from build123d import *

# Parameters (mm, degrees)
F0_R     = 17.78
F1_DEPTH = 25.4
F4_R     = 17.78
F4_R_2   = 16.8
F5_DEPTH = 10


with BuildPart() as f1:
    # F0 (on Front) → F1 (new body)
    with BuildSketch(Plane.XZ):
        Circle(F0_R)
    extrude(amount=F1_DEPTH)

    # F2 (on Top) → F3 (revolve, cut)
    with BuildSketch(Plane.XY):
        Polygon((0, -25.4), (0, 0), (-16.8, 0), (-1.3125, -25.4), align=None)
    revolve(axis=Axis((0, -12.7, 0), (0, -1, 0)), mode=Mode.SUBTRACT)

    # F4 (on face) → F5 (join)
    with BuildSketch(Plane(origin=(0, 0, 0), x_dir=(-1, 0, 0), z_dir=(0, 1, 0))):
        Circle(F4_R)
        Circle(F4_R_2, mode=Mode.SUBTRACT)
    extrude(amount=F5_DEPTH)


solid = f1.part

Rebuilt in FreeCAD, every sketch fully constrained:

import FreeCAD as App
import Part
import Sketcher

V = App.Vector
Q = App.Units.Quantity


def add_polygon(sketch, points):
    """Adds a closed chain of lines whose ends are joined by coincident constraints."""
    first, n = sketch.GeometryCount, len(points)
    for a, b in zip(points, points[1:] + points[:1]):
        sketch.addGeometry(Part.LineSegment(App.Vector(*a, 0), App.Vector(*b, 0)), False)
    for i in range(n):
        sketch.addConstraint(Sketcher.Constraint("Coincident", first + i, 2, first + (i + 1) % n, 1))

doc = App.newDocument("Part")
body = doc.addObject("PartDesign::Body", "Body")

# Sketch on XZ plane
sketch1 = body.newObject("Sketcher::SketchObject", "Sketch")
sketch1.AttachmentSupport = (doc.getObject("XZ_Plane"), [""])
sketch1.MapMode = "FlatFace"
sketch1.addGeometry(Part.Circle(V(0, 0, 0), V(0, 0, 1), 18), False)
sketch1.addConstraint(Sketcher.Constraint("Coincident", 0, 3, -1, 1))
sketch1.addConstraint(Sketcher.Constraint("Diameter", 0, Q("35.56 mm")))
pad1 = body.newObject("PartDesign::Pad", "Pad")
pad1.Profile = sketch1
pad1.Length = 25.4

# Sketch on XY plane
sketch2 = body.newObject("Sketcher::SketchObject", "Sketch001")
sketch2.AttachmentSupport = (doc.getObject("XY_Plane"), [""])
sketch2.MapMode = "FlatFace"
add_polygon(sketch2, [(0, -25.4), (0, 0), (-16.8, 0), (-1.3, -25.4)])  # lines 0-3
sketch2.addConstraint(Sketcher.Constraint("Vertical", 0))
sketch2.addConstraint(Sketcher.Constraint("Horizontal", 1))
sketch2.addConstraint(Sketcher.Constraint("Horizontal", 3))
sketch2.addConstraint(Sketcher.Constraint("Coincident", 0, 2, -1, 1))
sketch2.addConstraint(Sketcher.Constraint("DistanceX", 1, 2, 1, 1, Q("16.8 mm")))
sketch2.addConstraint(Sketcher.Constraint("DistanceY", 0, 1, 0, 2, Q("25.4 mm")))
sketch2.addConstraint(Sketcher.Constraint("DistanceX", 3, 1, 3, 2, Q("1.3125 mm")))
groove = body.newObject("PartDesign::Groove", "Groove")
groove.Profile = sketch2
groove.ReferenceAxis = (sketch2, ["V_Axis"])
groove.Angle = 360

# Sketch on XZ plane
sketch3 = body.newObject("Sketcher::SketchObject", "Sketch002")
sketch3.AttachmentSupport = (doc.getObject("XZ_Plane"), [""])
sketch3.MapMode = "FlatFace"
sketch3.addGeometry(Part.Circle(V(0, 0, 0), V(0, 0, 1), 18), False)
sketch3.addGeometry(Part.Circle(V(0, 0, 0), V(0, 0, 1), 17), False)
sketch3.addConstraint(Sketcher.Constraint("Coincident", 0, 3, -1, 1))
sketch3.addConstraint(Sketcher.Constraint("Coincident", 1, 3, -1, 1))
sketch3.addConstraint(Sketcher.Constraint("Diameter", 1, Q("33.6 mm")))
sketch3.addConstraint(Sketcher.Constraint("Diameter", 0, Q("35.56 mm")))
pad2 = body.newObject("PartDesign::Pad", "Pad001")
pad2.Profile = sketch3
pad2.Length = 10
pad2.Reversed = True

doc.recompute()
